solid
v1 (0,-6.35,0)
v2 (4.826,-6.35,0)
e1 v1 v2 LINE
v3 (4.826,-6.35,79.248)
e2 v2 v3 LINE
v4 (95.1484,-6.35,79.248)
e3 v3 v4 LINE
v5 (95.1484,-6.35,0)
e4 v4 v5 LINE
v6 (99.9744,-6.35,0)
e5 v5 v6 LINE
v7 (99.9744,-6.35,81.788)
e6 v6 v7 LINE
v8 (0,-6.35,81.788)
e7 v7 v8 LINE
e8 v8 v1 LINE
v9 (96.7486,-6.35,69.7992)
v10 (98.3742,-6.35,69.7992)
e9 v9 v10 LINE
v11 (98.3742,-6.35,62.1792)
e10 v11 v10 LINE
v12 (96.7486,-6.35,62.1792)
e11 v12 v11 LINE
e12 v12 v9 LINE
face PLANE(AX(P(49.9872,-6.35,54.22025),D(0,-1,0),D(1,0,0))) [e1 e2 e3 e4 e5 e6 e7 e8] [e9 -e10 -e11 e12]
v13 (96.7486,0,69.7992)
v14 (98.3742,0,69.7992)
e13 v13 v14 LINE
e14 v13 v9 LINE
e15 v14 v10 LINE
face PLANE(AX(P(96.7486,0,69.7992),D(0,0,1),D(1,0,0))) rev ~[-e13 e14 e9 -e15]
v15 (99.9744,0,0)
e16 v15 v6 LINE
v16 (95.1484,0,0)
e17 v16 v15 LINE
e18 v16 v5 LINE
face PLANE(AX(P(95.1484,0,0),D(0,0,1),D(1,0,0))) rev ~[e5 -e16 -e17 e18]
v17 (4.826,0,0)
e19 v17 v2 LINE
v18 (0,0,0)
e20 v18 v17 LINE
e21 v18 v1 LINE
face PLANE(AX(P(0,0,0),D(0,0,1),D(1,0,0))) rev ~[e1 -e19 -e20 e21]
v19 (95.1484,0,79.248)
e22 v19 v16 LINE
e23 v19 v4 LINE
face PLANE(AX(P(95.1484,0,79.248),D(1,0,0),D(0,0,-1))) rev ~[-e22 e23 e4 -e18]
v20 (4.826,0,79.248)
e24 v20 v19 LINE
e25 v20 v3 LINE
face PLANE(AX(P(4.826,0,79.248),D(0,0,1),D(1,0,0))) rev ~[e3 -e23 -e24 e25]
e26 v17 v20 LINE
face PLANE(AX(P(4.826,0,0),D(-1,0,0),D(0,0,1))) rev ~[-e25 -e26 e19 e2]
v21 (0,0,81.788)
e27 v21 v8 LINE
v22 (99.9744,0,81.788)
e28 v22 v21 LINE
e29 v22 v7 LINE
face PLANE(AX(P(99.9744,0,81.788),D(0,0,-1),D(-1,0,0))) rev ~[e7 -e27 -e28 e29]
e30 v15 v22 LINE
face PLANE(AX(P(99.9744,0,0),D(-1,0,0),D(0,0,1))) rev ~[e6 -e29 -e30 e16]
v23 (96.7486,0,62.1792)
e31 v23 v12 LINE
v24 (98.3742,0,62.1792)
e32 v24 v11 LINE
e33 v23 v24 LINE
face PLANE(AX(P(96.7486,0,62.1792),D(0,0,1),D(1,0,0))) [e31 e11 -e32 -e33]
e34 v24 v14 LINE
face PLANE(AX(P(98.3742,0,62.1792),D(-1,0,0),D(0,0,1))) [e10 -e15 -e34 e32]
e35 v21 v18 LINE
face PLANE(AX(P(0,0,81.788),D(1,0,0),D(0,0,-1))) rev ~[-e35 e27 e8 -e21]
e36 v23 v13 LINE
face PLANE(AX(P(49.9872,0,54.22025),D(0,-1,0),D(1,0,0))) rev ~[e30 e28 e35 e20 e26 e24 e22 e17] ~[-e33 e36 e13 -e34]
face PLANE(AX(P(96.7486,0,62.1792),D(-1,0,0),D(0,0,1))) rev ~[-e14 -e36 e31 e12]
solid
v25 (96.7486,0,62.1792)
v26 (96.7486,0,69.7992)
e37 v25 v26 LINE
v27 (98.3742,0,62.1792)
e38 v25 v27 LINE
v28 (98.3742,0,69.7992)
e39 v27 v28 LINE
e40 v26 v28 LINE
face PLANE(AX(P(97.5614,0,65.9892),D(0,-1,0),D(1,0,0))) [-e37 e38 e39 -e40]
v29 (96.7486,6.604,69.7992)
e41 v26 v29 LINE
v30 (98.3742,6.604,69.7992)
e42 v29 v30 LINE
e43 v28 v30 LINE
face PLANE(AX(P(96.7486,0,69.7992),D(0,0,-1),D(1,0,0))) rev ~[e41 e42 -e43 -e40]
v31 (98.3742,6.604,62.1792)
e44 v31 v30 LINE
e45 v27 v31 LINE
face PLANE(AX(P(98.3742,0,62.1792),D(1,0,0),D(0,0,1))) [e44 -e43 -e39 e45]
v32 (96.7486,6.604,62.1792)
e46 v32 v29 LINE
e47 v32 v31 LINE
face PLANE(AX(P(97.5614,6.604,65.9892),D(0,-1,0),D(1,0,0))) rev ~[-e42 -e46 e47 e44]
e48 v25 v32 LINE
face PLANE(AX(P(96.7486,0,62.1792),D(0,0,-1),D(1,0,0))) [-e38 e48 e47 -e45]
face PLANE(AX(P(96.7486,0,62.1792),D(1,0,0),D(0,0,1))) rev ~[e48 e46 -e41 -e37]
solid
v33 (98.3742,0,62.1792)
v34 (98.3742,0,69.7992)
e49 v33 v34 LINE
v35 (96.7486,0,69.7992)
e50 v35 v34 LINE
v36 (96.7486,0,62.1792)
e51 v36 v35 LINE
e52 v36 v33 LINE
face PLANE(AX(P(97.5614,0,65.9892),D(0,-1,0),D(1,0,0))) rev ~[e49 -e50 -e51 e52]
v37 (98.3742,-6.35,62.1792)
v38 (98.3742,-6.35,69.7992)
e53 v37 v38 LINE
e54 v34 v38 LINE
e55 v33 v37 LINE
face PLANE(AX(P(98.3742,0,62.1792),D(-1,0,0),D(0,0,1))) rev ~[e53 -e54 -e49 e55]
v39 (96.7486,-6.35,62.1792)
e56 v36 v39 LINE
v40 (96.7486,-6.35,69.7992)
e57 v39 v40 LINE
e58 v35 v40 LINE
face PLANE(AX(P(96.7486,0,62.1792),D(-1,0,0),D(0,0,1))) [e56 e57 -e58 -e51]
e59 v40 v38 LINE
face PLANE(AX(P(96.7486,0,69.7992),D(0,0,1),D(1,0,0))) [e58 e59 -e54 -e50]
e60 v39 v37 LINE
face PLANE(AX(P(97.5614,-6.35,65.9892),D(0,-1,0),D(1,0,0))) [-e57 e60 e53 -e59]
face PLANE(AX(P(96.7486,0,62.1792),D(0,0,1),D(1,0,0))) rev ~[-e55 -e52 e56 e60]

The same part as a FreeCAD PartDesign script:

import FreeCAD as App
import Part
import Sketcher

V = App.Vector
Q = App.Units.Quantity


def add_polygon(sketch, points):
    """Adds a closed chain of lines whose ends are joined by coincident constraints."""
    first, n = sketch.GeometryCount, len(points)
    for a, b in zip(points, points[1:] + points[:1]):
        sketch.addGeometry(Part.LineSegment(App.Vector(*a, 0), App.Vector(*b, 0)), False)
    for i in range(n):
        sketch.addConstraint(Sketcher.Constraint("Coincident", first + i, 2, first + (i + 1) % n, 1))

doc = App.newDocument("Part")
body = doc.addObject("PartDesign::Body", "Body")

sketch1 = body.newObject("Sketcher::SketchObject", "Sketch")
sketch1.AttachmentSupport = (doc.getObject("XZ_Plane"), [""])
sketch1.MapMode = "FlatFace"
add_polygon(sketch1, [(100, 81.8), (0, 81.8), (0, 0), (4.8, 0), (4.8, 79.2), (95.1, 79.2), (95.1, 0), (100, 0)])
add_polygon(sketch1, [(98.4, 62.2), (96.7, 62.2), (96.7, 69.8), (98.4, 69.8)])
sketch1.addConstraint([
    Sketcher.Constraint("Horizontal", 0),
    Sketcher.Constraint("Vertical", 1),
    Sketcher.Constraint("Horizontal", 2),
    Sketcher.Constraint("Vertical", 3),
    Sketcher.Constraint("Horizontal", 4),
    Sketcher.Constraint("Vertical", 5),
    Sketcher.Constraint("Horizontal", 6),
    Sketcher.Constraint("Vertical", 7),
    Sketcher.Constraint("Horizontal", 8),
    Sketcher.Constraint("Vertical", 9),
    Sketcher.Constraint("Horizontal", 10),
    Sketcher.Constraint("Vertical", 11),
    Sketcher.Constraint("Coincident", 1, 2, -1, 1),
    Sketcher.Constraint("PointOnObject", 5, 2, -1),
    Sketcher.Constraint("Equal", 2, 6),
    Sketcher.Constraint("DistanceY", 9, 1, 9, 2, Q("0.3 in")),
    Sketcher.Constraint("DistanceX", 2, 1, 2, 2, Q("0.19 in")),
    Sketcher.Constraint("DistanceY", 1, 2, 1, 1, Q("3.22 in")),
    Sketcher.Constraint("DistanceY", 3, 1, 3, 2, Q("3.12 in")),
    Sketcher.Constraint("DistanceX", 0, 2, 0, 1, Q("3.936 in")),
    Sketcher.Constraint("DistanceX", 8, 2, 8, 1, Q("0.064 in")),
    Sketcher.Constraint("DistanceX", -1, 1, 8, 2, Q("3.809 in")),
    Sketcher.Constraint("DistanceY", -1, 1, 8, 2, Q("2.448 in")),
])
pad1 = body.newObject("PartDesign::Pad", "Pad")
pad1.Profile = sketch1
pad1.Length = Q("0.25 in")
body2 = doc.addObject("PartDesign::Body", "Body001")

sketch2 = body2.newObject("Sketcher::SketchObject", "Sketch001")
sketch2.AttachmentSupport = (doc.getObject("XZ_Plane001"), [""])
sketch2.MapMode = "FlatFace"
add_polygon(sketch2, [(96.7, 69.8), (96.7, 62.2), (98.4, 62.2), (98.4, 69.8)])
sketch2.addConstraint([
    Sketcher.Constraint("Vertical", 0),
    Sketcher.Constraint("Horizontal", 1),
    Sketcher.Constraint("Vertical", 2),
    Sketcher.Constraint("Horizontal", 3),
    Sketcher.Constraint("DistanceY", 0, 2, 0, 1, Q("0.3 in")),
    Sketcher.Constraint("DistanceX", 1, 1, 1, 2, Q("0.064 in")),
    Sketcher.Constraint("DistanceX", -1, 1, 0, 2, Q("3.809 in")),
    Sketcher.Constraint("DistanceY", -1, 1, 0, 2, Q("2.448 in")),
])
pad2 = body2.newObject("PartDesign::Pad", "Pad001")
pad2.Profile = sketch2
pad2.Length = Q("0.25 in")
body3 = doc.addObject("PartDesign::Body", "Body002")

sketch3 = body3.newObject("Sketcher::SketchObject", "Sketch002")
sketch3.AttachmentSupport = (doc.getObject("XZ_Plane002"), [""])
sketch3.MapMode = "FlatFace"
add_polygon(sketch3, [(96.7, 69.8), (96.7, 62.2), (98.4, 62.2), (98.4, 69.8)])
sketch3.addConstraint([
    Sketcher.Constraint("Vertical", 0),
    Sketcher.Constraint("Horizontal", 1),
    Sketcher.Constraint("Vertical", 2),
    Sketcher.Constraint("Horizontal", 3),
    Sketcher.Constraint("DistanceY", 0, 2, 0, 1, Q("0.3 in")),
    Sketcher.Constraint("DistanceX", 1, 1, 1, 2, Q("0.064 in")),
    Sketcher.Constraint("DistanceX", -1, 1, 0, 2, Q("3.809 in")),
    Sketcher.Constraint("DistanceY", -1, 1, 0, 2, Q("2.448 in")),
])
pad3 = body3.newObject("PartDesign::Pad", "Pad002")
pad3.Profile = sketch3
pad3.Length = Q("0.26 in")
pad3.Reversed = True

doc.recompute()
